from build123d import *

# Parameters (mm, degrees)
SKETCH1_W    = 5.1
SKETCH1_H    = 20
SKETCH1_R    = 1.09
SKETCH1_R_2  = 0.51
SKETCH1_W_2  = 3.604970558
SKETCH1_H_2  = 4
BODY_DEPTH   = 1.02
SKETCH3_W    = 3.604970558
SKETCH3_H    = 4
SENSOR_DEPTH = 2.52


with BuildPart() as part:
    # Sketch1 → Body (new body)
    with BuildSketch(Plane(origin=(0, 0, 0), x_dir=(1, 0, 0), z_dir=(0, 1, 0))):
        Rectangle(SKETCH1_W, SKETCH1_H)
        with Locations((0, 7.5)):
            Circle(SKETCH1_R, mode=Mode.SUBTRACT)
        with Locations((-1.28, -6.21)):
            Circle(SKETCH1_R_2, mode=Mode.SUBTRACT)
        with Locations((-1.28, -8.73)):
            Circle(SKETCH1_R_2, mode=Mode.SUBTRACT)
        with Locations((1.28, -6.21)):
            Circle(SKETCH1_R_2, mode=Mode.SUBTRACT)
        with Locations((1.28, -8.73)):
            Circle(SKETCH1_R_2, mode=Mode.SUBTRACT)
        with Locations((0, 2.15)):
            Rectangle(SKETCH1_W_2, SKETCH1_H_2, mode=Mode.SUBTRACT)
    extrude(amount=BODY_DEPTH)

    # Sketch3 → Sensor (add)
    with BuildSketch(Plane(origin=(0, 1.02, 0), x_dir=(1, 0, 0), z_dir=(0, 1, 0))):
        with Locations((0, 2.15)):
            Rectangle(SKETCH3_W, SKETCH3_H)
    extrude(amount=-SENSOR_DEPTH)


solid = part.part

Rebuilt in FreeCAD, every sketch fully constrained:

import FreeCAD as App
import Part
import Sketcher

V = App.Vector
Q = App.Units.Quantity


def add_polygon(sketch, points):
    """Adds a closed chain of lines whose ends are joined by coincident constraints."""
    first, n = sketch.GeometryCount, len(points)
    for a, b in zip(points, points[1:] + points[:1]):
        sketch.addGeometry(Part.LineSegment(App.Vector(*a, 0), App.Vector(*b, 0)), False)
    for i in range(n):
        sketch.addConstraint(Sketcher.Constraint("Coincident", first + i, 2, first + (i + 1) % n, 1))

doc = App.newDocument("Part")
body = doc.addObject("PartDesign::Body", "Body")

# Sketch on XZ plane
sketch1 = body.newObject("Sketcher::SketchObject", "Sketch")
sketch1.AttachmentSupport = (doc.getObject("XZ_Plane"), [""])
sketch1.MapMode = "FlatFace"
add_polygon(sketch1, [(-2.5, -10), (-2.5, 10), (2.5, 10), (2.5, -10)])  # lines 0-3
sketch1.addGeometry(Part.Circle(V(-1.3, 8.7, 0), V(0, 0, 1), 0.5), False)  # 4
sketch1.addGeometry(Part.Circle(V(-1.3, 6.2, 0), V(0, 0, 1), 0.5), False)  # 5
sketch1.addGeometry(Part.Circle(V(1.3, 8.7, 0), V(0, 0, 1), 0.5), False)  # 6
sketch1.addGeometry(Part.Circle(V(1.3, 6.2, 0), V(0, 0, 1), 0.5), False)  # 7
add_polygon(sketch1, [(1.8, -0.1), (-1.8, -0.1), (-1.8, -4.2), (1.8, -4.2)])  # lines 8-11
sketch1.addGeometry(Part.Circle(V(0, -7.5, 0), V(0, 0, 1), 1.1), False)  # 12
sketch1.addConstraint([
    Sketcher.Constraint("Vertical", 0),
    Sketcher.Constraint("Horizontal", 1),
    Sketcher.Constraint("Vertical", 2),
    Sketcher.Constraint("Horizontal", 3),
    Sketcher.Constraint("Horizontal", 8),
    Sketcher.Constraint("Vertical", 9),
    Sketcher.Constraint("Horizontal", 10),
    Sketcher.Constraint("Vertical", 11),
    Sketcher.Constraint("Equal", 4, 5),
    Sketcher.Constraint("Equal", 5, 6),
    Sketcher.Constraint("Equal", 6, 7),
    Sketcher.Constraint("Symmetric", 0, 2, 2, 2, -1, 1),
    Sketcher.Constraint("Symmetric", 4, 3, 6, 3, -2),
    Sketcher.Constraint("Symmetric", 5, 3, 7, 3, -2),
    Sketcher.Constraint("PointOnObject", 12, 3, -2),
    Sketcher.Constraint("Vertical", 4, 3, 5, 3),
    Sketcher.Constraint("Diameter", 4, Q("1.02 mm")),
    Sketcher.Constraint("Diameter", 12, Q("2.18 mm")),
    Sketcher.Constraint("DistanceY", 0, 1, 0, 2, Q("20 mm")),
    Sketcher.Constraint("DistanceY", 9, 2, 9, 1, Q("4 mm")),
    Sketcher.Constraint("DistanceX", 1, 1, 1, 2, Q("5.1 mm")),
    Sketcher.Constraint("DistanceY", 12, 3, -1, 1, Q("7.5 mm")),
    Sketcher.Constraint("DistanceX", 4, 3, -1, 1, Q("1.28 mm")),
    Sketcher.Constraint("DistanceY", -1, 1, 4, 3, Q("8.73 mm")),
    Sketcher.Constraint("DistanceY", -1, 1, 5, 3, Q("6.21 mm")),
    Sketcher.Constraint("DistanceY", 8, 2, -1, 1, Q("0.15 mm")),
    Sketcher.Constraint("DistanceX", 8, 2, 8, 1, Q("3.604971 mm")),
    Sketcher.Constraint("DistanceX", 8, 2, -1, 1, Q("1.802485 mm")),
])
pad1 = body.newObject("PartDesign::Pad", "Pad")
pad1.Profile = sketch1
pad1.Length = 1.02
pad1.Reversed = True

# Sketch on XZ plane
sketch2 = body.newObject("Sketcher::SketchObject", "Sketch001")
sketch2.AttachmentSupport = (doc.getObject("XZ_Plane"), [""])
sketch2.MapMode = "FlatFace"
sketch2.AttachmentOffset = App.Placement(V(0, 0, -1.02), App.Rotation())
add_polygon(sketch2, [(-1.8, -4.2), (-1.8, -0.1), (1.8, -0.1), (1.8, -4.2)])  # lines 0-3
sketch2.addConstraint([
    Sketcher.Constraint("Vertical", 0),
    Sketcher.Constraint("Horizontal", 1),
    Sketcher.Constraint("Vertical", 2),
    Sketcher.Constraint("Horizontal", 3),
    Sketcher.Constraint("DistanceY", 0, 1, 0, 2, Q("4 mm")),
    Sketcher.Constraint("DistanceY", 0, 2, -1, 1, Q("0.15 mm")),
    Sketcher.Constraint("DistanceX", 1, 1, 1, 2, Q("3.604971 mm")),
    Sketcher.Constraint("DistanceX", 0, 2, -1, 1, Q("1.802485 mm")),
])
pad2 = body.newObject("PartDesign::Pad", "Pad001")
pad2.Profile = sketch2
pad2.Length = 2.52

doc.recompute()
